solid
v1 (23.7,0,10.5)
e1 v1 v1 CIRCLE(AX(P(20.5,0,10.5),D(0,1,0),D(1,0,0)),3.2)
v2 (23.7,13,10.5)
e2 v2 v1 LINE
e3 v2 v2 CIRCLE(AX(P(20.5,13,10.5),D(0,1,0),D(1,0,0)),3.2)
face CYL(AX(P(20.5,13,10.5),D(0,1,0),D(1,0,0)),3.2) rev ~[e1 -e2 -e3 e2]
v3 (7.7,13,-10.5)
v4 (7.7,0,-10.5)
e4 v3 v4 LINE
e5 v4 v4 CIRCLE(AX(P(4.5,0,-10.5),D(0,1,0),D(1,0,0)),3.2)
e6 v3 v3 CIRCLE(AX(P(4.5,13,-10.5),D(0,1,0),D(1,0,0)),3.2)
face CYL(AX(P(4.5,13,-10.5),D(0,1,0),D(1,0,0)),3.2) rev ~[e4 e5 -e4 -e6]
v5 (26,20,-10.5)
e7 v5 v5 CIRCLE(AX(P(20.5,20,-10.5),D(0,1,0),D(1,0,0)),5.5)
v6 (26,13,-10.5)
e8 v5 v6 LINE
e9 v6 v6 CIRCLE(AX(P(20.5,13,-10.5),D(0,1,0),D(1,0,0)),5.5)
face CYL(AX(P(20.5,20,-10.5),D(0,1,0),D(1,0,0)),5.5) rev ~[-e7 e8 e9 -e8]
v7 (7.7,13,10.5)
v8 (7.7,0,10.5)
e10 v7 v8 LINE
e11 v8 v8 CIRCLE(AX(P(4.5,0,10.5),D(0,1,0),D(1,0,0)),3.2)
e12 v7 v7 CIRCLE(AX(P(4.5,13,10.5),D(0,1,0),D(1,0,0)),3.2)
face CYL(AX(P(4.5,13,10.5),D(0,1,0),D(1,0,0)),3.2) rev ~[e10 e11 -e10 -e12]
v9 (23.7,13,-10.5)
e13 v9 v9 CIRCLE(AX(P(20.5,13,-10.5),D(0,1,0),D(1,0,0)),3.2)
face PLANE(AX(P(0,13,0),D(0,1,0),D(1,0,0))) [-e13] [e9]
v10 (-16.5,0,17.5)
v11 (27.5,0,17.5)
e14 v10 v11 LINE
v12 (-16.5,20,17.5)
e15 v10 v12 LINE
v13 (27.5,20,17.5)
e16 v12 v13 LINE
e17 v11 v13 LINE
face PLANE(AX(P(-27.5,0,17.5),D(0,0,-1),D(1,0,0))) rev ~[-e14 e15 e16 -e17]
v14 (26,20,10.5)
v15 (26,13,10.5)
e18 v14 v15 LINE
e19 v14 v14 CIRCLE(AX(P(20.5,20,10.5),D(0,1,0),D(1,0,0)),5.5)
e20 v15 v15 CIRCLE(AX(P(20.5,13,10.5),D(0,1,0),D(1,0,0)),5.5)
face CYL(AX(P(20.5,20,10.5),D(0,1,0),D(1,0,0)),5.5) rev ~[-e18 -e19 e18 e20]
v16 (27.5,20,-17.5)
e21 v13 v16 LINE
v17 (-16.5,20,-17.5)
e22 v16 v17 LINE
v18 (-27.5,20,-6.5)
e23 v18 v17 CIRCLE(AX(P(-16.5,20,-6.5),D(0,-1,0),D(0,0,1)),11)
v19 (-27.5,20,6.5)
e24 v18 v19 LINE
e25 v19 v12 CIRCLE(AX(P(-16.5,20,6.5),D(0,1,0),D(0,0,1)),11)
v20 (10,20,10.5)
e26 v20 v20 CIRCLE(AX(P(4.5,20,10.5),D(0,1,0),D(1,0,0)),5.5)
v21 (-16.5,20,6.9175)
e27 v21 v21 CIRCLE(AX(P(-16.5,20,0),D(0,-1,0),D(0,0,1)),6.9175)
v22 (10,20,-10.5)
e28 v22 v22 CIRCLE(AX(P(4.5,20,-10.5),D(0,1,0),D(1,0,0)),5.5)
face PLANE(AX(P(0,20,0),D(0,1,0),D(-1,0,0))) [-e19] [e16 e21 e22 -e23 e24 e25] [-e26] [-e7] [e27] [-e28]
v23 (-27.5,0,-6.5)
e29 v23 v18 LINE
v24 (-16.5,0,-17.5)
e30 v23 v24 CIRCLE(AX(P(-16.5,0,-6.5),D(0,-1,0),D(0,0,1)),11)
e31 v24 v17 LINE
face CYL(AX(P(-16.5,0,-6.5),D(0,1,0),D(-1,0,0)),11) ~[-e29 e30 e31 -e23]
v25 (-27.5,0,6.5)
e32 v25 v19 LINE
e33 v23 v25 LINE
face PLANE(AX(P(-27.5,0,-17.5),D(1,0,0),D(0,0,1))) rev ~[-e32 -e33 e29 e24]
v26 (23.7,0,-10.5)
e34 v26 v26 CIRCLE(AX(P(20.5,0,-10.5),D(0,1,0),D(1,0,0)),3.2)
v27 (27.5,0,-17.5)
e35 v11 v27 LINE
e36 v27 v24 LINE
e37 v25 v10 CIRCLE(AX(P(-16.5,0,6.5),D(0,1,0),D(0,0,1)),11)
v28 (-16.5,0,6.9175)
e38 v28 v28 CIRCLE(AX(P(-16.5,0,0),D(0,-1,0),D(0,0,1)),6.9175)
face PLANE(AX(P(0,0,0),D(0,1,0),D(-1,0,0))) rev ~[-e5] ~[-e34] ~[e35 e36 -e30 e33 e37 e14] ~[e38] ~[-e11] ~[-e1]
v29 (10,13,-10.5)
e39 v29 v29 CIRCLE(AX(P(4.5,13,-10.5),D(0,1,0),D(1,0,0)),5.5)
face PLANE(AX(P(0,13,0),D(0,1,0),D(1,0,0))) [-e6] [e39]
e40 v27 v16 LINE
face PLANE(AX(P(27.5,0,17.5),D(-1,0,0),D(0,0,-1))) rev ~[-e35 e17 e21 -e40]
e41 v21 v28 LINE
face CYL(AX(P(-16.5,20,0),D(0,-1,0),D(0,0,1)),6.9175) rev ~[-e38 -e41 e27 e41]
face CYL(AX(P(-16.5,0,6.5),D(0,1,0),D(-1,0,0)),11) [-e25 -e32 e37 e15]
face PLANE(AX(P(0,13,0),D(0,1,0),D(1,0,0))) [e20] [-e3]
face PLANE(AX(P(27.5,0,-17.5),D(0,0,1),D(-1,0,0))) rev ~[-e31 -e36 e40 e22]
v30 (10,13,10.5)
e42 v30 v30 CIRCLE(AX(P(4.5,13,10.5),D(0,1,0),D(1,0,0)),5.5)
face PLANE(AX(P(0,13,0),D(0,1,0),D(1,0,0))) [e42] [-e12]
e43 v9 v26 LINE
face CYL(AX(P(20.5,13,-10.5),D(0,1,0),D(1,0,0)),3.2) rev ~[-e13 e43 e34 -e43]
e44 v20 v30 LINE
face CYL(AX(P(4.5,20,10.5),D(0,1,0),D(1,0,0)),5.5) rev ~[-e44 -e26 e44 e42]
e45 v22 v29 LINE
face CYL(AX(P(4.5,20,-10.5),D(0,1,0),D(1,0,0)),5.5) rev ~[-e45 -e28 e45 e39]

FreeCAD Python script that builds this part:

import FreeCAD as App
import Part
import Sketcher
from FreeCAD import Vector
Q = App.Units.Quantity


def edges_at(feature, points):
    """Names of the edges that pass closest to the given points."""
    edges = feature.Shape.Edges
    near = lambda p: min(range(len(edges)), key=lambda i: edges[i].distToShape(Part.Vertex(*p))[0])
    return sorted({f"Edge{near(p) + 1}" for p in points})

doc = App.newDocument("Part")
params = doc.addObject("Spreadsheet::Sheet", "Params")
for row, (alias, value) in enumerate([
    ("sketch1_width", "55 mm"),
    ("sketch1_height", "35 mm"),
    ("pad1_length", "20 mm"),
    ("sketch2_diameter", "11 mm"),
    ("pocket1_length", "7 mm"),
    ("sketch3_diameter", "6.4 mm"),
    ("pocket2_length", "20 mm"),
    ("fillet_radius", "11 mm"),
    ("hole_diameter", "13.835 mm"),
    ("hole_depth", "41.3 mm"),
], start=1):
    params.set(f"A{row}", alias)
    params.set(f"B{row}", "=" + value)
    params.setAlias(f"B{row}", alias)

body = doc.addObject("PartDesign::Body", "Body")

sketch1 = body.newObject("Sketcher::SketchObject", "Sketch")
sketch1.AttachmentSupport = (doc.getObject("XZ_Plane"), [""])
sketch1.MapMode = "FlatFace"
sketch1.addGeometry(Part.LineSegment(Vector(-27.5, -17.5, 0), Vector(-27.5, 17.5, 0)), False)
sketch1.addGeometry(Part.LineSegment(Vector(-27.5, 17.5, 0), Vector(27.5, 17.5, 0)), False)
sketch1.addGeometry(Part.LineSegment(Vector(27.5, 17.5, 0), Vector(27.5, -17.5, 0)), False)
sketch1.addGeometry(Part.LineSegment(Vector(27.5, -17.5, 0), Vector(-27.5, -17.5, 0)), False)
sketch1.addConstraint(Sketcher.Constraint("Coincident", 0, 2, 1, 1))
sketch1.addConstraint(Sketcher.Constraint("Coincident", 1, 2, 2, 1))
sketch1.addConstraint(Sketcher.Constraint("Coincident", 2, 2, 3, 1))
sketch1.addConstraint(Sketcher.Constraint("Coincident", 3, 2, 0, 1))
sketch1.addConstraint(Sketcher.Constraint("Vertical", 0))
sketch1.addConstraint(Sketcher.Constraint("Horizontal", 1))
sketch1.addConstraint(Sketcher.Constraint("Vertical", 2))
sketch1.addConstraint(Sketcher.Constraint("Horizontal", 3))
sketch1.addConstraint(Sketcher.Constraint("Symmetric", 0, 2, 2, 2, -1, 1))
sketch1.addConstraint(Sketcher.Constraint("DistanceX", 1, 1, 1, 2, Q("55 mm")))
sketch1.addConstraint(Sketcher.Constraint("DistanceY", 0, 1, 0, 2, Q("35 mm")))
sketch1.setExpression("Constraints[9]", "Params.sketch1_width")
sketch1.setExpression("Constraints[10]", "Params.sketch1_height")
pad1 = body.newObject("PartDesign::Pad", "Pad")
pad1.Profile = sketch1
pad1.setExpression("Length", "Params.pad1_length")
pad1.Reversed = True

sketch2 = body.newObject("Sketcher::SketchObject", "Sketch001")
sketch2.AttachmentSupport = (doc.getObject("XZ_Plane"), [""])
sketch2.MapMode = "FlatFace"
sketch2.AttachmentOffset = App.Placement(Vector(0, 0, -20), App.Rotation())
sketch2.addGeometry(Part.Circle(Vector(20.5, -10.5, 0), Vector(0, 0, 1), 5.5), False)
sketch2.addGeometry(Part.Circle(Vector(20.5, 10.5, 0), Vector(0, 0, 1), 5.5), False)
sketch2.addGeometry(Part.Circle(Vector(4.5, 10.5, 0), Vector(0, 0, 1), 5.5), False)
sketch2.addGeometry(Part.Circle(Vector(4.5, -10.5, 0), Vector(0, 0, 1), 5.5), False)
sketch2.addConstraint(Sketcher.Constraint("Equal", 0, 1))
sketch2.addConstraint(Sketcher.Constraint("Equal", 1, 2))
sketch2.addConstraint(Sketcher.Constraint("Equal", 2, 3))
sketch2.addConstraint(Sketcher.Constraint("Symmetric", 0, 3, 1, 3, -1))
sketch2.addConstraint(Sketcher.Constraint("Symmetric", 2, 3, 3, 3, -1))
sketch2.addConstraint(Sketcher.Constraint("Horizontal", 1, 3, 2, 3))
sketch2.addConstraint(Sketcher.Constraint("Diameter", 0, Q("11 mm")))
sketch2.addConstraint(Sketcher.Constraint("DistanceY", 0, 3, 1, 3, Q("21 mm")))
sketch2.addConstraint(Sketcher.Constraint("DistanceX", 2, 3, 1, 3, Q("16 mm")))
sketch2.addConstraint(Sketcher.Constraint("DistanceX", -1, 1, 0, 3, Q("20.5 mm")))
sketch2.setExpression("Constraints[6]", "Params.sketch2_diameter")
pocket1 = body.newObject("PartDesign::Pocket", "Pocket")
pocket1.Profile = sketch2
pocket1.setExpression("Length", "Params.pocket1_length")
pocket1.Reversed = True

sketch3 = body.newObject("Sketcher::SketchObject", "Sketch002")
sketch3.AttachmentSupport = (doc.getObject("XZ_Plane"), [""])
sketch3.MapMode = "FlatFace"
sketch3.AttachmentOffset = App.Placement(Vector(0, 0, -13), App.Rotation())
sketch3.addGeometry(Part.Circle(Vector(4.5, 10.5, 0), Vector(0, 0, 1), 3.2), False)
sketch3.addGeometry(Part.Circle(Vector(4.5, -10.5, 0), Vector(0, 0, 1), 3.2), False)
sketch3.addGeometry(Part.Circle(Vector(20.5, -10.5, 0), Vector(0, 0, 1), 3.2), False)
sketch3.addGeometry(Part.Circle(Vector(20.5, 10.5, 0), Vector(0, 0, 1), 3.2), False)
sketch3.addConstraint(Sketcher.Constraint("Equal", 0, 1))
sketch3.addConstraint(Sketcher.Constraint("Equal", 1, 2))
sketch3.addConstraint(Sketcher.Constraint("Equal", 2, 3))
sketch3.addConstraint(Sketcher.Constraint("Symmetric", 0, 3, 1, 3, -1))
sketch3.addConstraint(Sketcher.Constraint("Symmetric", 2, 3, 3, 3, -1))
sketch3.addConstraint(Sketcher.Constraint("Horizontal", 1, 3, 2, 3))
sketch3.addConstraint(Sketcher.Constraint("Diameter", 0, Q("6.4 mm")))
sketch3.addConstraint(Sketcher.Constraint("DistanceY", 1, 3, 0, 3, Q("21 mm")))
sketch3.addConstraint(Sketcher.Constraint("DistanceX", 1, 3, 2, 3, Q("16 mm")))
sketch3.addConstraint(Sketcher.Constraint("DistanceX", -1, 1, 0, 3, Q("4.5 mm")))
sketch3.setExpression("Constraints[6]", "Params.sketch3_diameter")
pocket2 = body.newObject("PartDesign::Pocket", "Pocket001")
pocket2.Profile = sketch3
pocket2.setExpression("Length", "Params.pocket2_length")
pocket2.Reversed = True
doc.recompute()

fillet = body.newObject("PartDesign::Fillet", "Fillet")
fillet.Base = (pocket2, edges_at(pocket2, [(-27.5, 10, 17.5), (-27.5, 10, -17.5)]))
fillet.setExpression("Radius", "Params.fillet_radius")

sketch4 = body.newObject("Sketcher::SketchObject", "Sketch003")
sketch4.AttachmentSupport = (doc.getObject("XZ_Plane"), [""])
sketch4.MapMode = "FlatFace"
sketch4.AttachmentOffset = App.Placement(Vector(0, 0, -20), App.Rotation())
sketch4.addGeometry(Part.Circle(Vector(-16.5, 0, 0), Vector(0, 0, 1), 6.9175), False)
sketch4.addConstraint(Sketcher.Constraint("PointOnObject", 0, 3, -1))
sketch4.addConstraint(Sketcher.Constraint("Diameter", 0, Q("13.835 mm")))
sketch4.addConstraint(Sketcher.Constraint("DistanceX", 0, 3, -1, 1, Q("16.5 mm")))
doc.recompute()
hole = body.newObject("PartDesign::Hole", "Hole")
hole.Profile = sketch4
hole.ThreadType = "None"
hole.setExpression("Diameter", "Params.hole_diameter")
hole.DepthType = "Dimension"
hole.setExpression("Depth", "Params.hole_depth")
hole.DrillPoint = "Angled"
hole.DrillPointAngle = 118
hole.Reversed = True

doc.recompute()
